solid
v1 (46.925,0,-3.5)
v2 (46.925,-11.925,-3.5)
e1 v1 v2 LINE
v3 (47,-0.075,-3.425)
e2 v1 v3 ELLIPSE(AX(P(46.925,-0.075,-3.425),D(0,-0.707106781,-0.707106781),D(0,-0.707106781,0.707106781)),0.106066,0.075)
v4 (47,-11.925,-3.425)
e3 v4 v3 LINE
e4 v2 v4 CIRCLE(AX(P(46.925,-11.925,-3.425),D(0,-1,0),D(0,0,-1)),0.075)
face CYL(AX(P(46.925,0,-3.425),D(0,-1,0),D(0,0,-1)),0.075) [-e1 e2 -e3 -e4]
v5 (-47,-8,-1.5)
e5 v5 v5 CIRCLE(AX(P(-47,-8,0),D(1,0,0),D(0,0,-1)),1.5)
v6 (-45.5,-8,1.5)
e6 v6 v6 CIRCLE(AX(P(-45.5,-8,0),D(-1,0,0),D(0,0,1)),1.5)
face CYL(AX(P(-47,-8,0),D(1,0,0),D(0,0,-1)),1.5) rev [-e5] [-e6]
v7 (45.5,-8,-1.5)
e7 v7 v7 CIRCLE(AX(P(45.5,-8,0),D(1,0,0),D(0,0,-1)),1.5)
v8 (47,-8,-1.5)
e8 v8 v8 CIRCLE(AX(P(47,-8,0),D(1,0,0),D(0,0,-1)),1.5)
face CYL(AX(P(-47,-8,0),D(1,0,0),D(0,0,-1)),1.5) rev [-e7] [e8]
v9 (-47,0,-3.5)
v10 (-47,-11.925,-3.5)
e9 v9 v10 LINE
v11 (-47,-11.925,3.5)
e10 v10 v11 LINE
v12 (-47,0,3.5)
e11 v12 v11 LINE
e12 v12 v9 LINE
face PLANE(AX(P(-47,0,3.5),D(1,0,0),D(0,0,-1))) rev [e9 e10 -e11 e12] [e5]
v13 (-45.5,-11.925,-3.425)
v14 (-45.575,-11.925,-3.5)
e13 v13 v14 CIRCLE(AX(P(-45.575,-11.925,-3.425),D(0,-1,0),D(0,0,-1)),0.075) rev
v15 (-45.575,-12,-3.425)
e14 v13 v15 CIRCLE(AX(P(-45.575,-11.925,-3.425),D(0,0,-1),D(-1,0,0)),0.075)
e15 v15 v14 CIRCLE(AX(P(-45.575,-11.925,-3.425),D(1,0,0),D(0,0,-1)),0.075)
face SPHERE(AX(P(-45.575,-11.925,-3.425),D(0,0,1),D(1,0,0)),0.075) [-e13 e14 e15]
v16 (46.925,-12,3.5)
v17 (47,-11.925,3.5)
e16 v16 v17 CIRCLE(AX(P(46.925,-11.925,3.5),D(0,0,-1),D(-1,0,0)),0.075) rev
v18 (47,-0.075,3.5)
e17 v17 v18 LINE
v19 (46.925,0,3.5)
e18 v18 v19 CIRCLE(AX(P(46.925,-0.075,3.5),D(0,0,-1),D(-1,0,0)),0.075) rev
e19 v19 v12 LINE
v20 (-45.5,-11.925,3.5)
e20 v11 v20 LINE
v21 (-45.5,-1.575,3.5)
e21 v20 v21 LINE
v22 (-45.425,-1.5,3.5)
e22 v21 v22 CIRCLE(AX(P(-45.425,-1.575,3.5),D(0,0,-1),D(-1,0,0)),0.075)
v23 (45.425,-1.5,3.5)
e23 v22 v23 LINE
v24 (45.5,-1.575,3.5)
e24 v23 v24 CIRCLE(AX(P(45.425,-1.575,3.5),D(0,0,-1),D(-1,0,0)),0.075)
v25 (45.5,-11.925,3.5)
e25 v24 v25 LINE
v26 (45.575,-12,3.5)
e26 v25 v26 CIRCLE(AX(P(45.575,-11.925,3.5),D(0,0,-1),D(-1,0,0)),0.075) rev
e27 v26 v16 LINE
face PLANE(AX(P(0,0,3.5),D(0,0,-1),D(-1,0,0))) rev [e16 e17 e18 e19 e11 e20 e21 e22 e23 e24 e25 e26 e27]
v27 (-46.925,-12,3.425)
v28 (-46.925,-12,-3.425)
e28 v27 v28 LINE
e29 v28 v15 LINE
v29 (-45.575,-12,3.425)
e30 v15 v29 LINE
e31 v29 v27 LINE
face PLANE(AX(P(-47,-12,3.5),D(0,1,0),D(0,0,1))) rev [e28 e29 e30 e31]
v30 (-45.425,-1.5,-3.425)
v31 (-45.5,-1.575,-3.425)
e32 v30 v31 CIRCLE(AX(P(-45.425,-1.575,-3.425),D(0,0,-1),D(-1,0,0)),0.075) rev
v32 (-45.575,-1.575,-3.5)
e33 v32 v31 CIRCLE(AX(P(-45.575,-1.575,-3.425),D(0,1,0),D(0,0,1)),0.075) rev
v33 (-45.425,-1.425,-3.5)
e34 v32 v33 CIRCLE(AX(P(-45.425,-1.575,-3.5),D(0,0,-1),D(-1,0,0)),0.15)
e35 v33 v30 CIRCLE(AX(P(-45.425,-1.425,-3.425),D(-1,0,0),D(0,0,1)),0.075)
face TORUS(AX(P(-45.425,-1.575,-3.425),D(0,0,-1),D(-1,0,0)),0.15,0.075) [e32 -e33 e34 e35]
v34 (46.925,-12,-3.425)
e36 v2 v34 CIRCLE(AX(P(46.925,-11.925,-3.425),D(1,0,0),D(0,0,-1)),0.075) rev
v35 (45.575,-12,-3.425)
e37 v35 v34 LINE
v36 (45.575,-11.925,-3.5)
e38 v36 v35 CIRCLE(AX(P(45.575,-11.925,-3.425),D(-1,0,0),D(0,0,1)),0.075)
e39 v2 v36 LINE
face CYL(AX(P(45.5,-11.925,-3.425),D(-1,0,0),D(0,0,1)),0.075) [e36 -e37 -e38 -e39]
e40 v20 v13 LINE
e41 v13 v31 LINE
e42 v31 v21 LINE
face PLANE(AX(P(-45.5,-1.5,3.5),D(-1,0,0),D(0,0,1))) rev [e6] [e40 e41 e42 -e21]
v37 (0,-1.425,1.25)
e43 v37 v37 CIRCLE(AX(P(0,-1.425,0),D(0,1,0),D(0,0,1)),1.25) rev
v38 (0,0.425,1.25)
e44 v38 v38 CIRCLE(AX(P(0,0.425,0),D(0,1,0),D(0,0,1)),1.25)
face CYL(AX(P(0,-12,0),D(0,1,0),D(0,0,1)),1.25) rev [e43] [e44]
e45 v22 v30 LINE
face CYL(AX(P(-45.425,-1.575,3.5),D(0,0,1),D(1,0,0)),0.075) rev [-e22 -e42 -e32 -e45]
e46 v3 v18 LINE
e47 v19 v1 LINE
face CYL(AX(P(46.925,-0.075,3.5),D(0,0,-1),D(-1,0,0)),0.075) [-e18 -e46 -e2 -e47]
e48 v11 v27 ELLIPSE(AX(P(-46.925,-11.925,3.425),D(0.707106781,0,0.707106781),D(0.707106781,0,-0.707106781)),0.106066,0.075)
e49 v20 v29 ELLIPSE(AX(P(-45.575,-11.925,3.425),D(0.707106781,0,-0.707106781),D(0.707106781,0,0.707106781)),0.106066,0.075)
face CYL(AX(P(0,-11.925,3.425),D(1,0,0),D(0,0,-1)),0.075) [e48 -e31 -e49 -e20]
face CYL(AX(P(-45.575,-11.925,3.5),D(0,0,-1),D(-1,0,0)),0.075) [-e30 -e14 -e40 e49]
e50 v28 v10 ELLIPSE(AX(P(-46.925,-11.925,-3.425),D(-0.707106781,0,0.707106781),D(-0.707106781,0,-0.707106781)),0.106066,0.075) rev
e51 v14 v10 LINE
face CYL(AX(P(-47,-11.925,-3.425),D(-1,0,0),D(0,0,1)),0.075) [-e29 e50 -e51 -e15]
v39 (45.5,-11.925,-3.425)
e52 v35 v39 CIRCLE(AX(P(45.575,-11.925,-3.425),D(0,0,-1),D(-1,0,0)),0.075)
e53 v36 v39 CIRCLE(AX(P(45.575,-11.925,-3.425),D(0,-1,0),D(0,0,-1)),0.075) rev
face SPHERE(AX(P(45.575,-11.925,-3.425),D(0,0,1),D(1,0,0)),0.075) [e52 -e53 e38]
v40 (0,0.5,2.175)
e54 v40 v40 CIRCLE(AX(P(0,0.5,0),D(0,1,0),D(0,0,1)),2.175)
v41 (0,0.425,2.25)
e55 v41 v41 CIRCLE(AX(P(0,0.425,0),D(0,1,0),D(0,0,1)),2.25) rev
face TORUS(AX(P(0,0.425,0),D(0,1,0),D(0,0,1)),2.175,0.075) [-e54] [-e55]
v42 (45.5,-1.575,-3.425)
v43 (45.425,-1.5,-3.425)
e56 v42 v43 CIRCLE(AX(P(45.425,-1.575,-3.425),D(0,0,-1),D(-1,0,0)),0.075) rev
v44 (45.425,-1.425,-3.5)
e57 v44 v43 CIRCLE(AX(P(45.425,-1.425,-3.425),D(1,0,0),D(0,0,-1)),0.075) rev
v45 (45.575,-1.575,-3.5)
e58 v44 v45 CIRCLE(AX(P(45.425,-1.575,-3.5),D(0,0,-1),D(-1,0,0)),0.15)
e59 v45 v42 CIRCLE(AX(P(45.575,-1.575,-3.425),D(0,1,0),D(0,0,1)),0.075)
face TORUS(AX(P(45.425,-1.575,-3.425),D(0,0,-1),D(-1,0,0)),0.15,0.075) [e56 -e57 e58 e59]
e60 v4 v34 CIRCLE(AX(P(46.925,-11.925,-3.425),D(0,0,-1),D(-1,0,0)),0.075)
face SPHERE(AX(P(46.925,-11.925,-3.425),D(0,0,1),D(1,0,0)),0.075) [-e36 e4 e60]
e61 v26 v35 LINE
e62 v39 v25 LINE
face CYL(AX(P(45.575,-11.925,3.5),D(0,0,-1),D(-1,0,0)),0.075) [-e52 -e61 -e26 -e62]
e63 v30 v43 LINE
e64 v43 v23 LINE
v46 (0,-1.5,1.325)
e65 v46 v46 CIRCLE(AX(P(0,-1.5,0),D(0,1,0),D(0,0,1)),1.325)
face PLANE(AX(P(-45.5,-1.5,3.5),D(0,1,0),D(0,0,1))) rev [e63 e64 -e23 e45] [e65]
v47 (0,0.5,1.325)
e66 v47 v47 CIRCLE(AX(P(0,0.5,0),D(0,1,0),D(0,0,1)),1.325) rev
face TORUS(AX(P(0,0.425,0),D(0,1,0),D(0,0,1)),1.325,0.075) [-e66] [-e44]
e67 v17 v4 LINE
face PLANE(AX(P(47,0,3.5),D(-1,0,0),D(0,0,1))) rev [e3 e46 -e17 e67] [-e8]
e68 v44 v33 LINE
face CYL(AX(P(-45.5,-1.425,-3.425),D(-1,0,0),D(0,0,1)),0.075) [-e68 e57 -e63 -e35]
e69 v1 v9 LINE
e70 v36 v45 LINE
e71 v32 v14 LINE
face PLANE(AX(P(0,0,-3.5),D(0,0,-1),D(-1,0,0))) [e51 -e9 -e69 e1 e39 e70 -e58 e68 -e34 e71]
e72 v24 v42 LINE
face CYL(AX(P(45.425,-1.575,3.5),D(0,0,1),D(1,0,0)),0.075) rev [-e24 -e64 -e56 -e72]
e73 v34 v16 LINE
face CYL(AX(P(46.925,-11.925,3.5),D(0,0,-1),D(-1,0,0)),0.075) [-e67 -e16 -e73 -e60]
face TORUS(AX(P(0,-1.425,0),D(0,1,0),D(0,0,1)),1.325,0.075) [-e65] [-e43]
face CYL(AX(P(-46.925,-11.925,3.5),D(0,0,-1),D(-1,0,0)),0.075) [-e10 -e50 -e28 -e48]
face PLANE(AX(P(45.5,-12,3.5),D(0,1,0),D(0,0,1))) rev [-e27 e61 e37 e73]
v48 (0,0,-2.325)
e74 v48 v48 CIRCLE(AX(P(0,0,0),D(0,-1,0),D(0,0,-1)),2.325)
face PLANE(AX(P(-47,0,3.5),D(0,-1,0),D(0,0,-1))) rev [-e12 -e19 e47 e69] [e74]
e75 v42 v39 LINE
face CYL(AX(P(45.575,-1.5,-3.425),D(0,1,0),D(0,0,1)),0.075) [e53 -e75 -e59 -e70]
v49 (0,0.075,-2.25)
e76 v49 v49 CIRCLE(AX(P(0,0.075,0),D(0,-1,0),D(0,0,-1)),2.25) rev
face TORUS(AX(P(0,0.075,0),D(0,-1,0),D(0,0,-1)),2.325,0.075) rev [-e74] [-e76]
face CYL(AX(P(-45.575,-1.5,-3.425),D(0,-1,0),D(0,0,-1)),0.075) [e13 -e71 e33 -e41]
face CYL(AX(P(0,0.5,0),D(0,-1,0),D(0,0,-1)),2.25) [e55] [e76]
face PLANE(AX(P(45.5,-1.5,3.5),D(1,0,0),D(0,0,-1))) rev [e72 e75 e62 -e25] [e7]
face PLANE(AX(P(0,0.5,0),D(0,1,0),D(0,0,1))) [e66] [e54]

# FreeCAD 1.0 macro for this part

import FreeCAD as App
import Part
import Sketcher

V = App.Vector
Q = App.Units.Quantity


def edges_at(feature, points):
    """Names of the edges that pass closest to the given points."""
    edges = feature.Shape.Edges
    near = lambda p: min(range(len(edges)), key=lambda i: edges[i].distToShape(Part.Vertex(*p))[0])
    return sorted({f"Edge{near(p) + 1}" for p in points})


def add_polygon(sketch, points):
    """Adds a closed chain of lines whose ends are joined by coincident constraints."""
    first, n = sketch.GeometryCount, len(points)
    for a, b in zip(points, points[1:] + points[:1]):
        sketch.addGeometry(Part.LineSegment(App.Vector(*a, 0), App.Vector(*b, 0)), False)
    for i in range(n):
        sketch.addConstraint(Sketcher.Constraint("Coincident", first + i, 2, first + (i + 1) % n, 1))

doc = App.newDocument("Part")
body = doc.addObject("PartDesign::Body", "Body")

# Sketch on XY plane
sketch1 = body.newObject("Sketcher::SketchObject", "Sketch")
sketch1.AttachmentSupport = (doc.getObject("XY_Plane"), [""])
sketch1.MapMode = "FlatFace"
add_polygon(sketch1, [(47, 0), (-47, 0), (-47, -12), (-45.5, -12), (-45.5, -1.5), (45.5, -1.5), (45.5, -12), (47, -12)])  # lines 0-7
sketch1.addConstraint(Sketcher.Constraint("Horizontal", 0))
sketch1.addConstraint(Sketcher.Constraint("Vertical", 1))
sketch1.addConstraint(Sketcher.Constraint("Horizontal", 2))
sketch1.addConstraint(Sketcher.Constraint("Vertical", 3))
sketch1.addConstraint(Sketcher.Constraint("Horizontal", 4))
sketch1.addConstraint(Sketcher.Constraint("Vertical", 5))
sketch1.addConstraint(Sketcher.Constraint("Horizontal", 6))
sketch1.addConstraint(Sketcher.Constraint("Vertical", 7))
sketch1.addConstraint(Sketcher.Constraint("Symmetric", 0, 2, 7, 2, -1, 1))
sketch1.addConstraint(Sketcher.Constraint("Symmetric", 2, 2, 5, 2, -2))
sketch1.addConstraint(Sketcher.Constraint("DistanceX", 0, 2, 0, 1, Q("94 mm")))
sketch1.addConstraint(Sketcher.Constraint("DistanceX", 4, 1, 4, 2, Q("91 mm")))
sketch1.addConstraint(Sketcher.Constraint("DistanceY", 1, 2, 1, 1, Q("12 mm")))
sketch1.addConstraint(Sketcher.Constraint("DistanceY", 3, 1, 3, 2, Q("10.5 mm")))
pad1 = body.newObject("PartDesign::Pad", "Pad")
pad1.Profile = sketch1
pad1.Length = 7
pad1.Midplane = True

# Sketch on XZ plane
sketch2 = body.newObject("Sketcher::SketchObject", "Sketch001")
sketch2.AttachmentSupport = (doc.getObject("XZ_Plane"), [""])
sketch2.MapMode = "FlatFace"
sketch2.addGeometry(Part.Circle(V(0, 0, 0), V(0, 0, 1), 1.2), False)
sketch2.addConstraint(Sketcher.Constraint("Coincident", 0, 3, -1, 1))
sketch2.addConstraint(Sketcher.Constraint("Diameter", 0, Q("2.5 mm")))
pocket1 = body.newObject("PartDesign::Pocket", "Pocket")
pocket1.Profile = sketch2
pocket1.Type = "ThroughAll"
pocket1.Reversed = True

# Sketch on XZ plane
sketch3 = body.newObject("Sketcher::SketchObject", "Sketch002")
sketch3.AttachmentSupport = (doc.getObject("XZ_Plane"), [""])
sketch3.MapMode = "FlatFace"
sketch3.addGeometry(Part.Circle(V(0, 0, 0), V(0, 0, 1), 2.2), False)
sketch3.addGeometry(Part.Circle(V(0, 0, 0), V(0, 0, 1), 1.2), False)
sketch3.addConstraint(Sketcher.Constraint("Coincident", 0, 3, -1, 1))
sketch3.addConstraint(Sketcher.Constraint("Coincident", 1, 3, -1, 1))
sketch3.addConstraint(Sketcher.Constraint("Diameter", 0, Q("4.5 mm")))
sketch3.addConstraint(Sketcher.Constraint("Diameter", 1, Q("2.5 mm")))
pad2 = body.newObject("PartDesign::Pad", "Pad001")
pad2.Profile = sketch3
pad2.Length = 0.5
pad2.Reversed = True

# Sketch on YZ plane
sketch4 = body.newObject("Sketcher::SketchObject", "Sketch003")
sketch4.AttachmentSupport = (doc.getObject("YZ_Plane"), [""])
sketch4.MapMode = "FlatFace"
sketch4.addGeometry(Part.Circle(V(-8, 0, 0), V(0, 0, 1), 1.5), False)
sketch4.addConstraint(Sketcher.Constraint("PointOnObject", 0, 3, -1))
sketch4.addConstraint(Sketcher.Constraint("Diameter", 0, Q("3 mm")))
sketch4.addConstraint(Sketcher.Constraint("DistanceX", 0, 3, -1, 1, Q("8 mm")))
pocket2 = body.newObject("PartDesign::Pocket", "Pocket001")
pocket2.Profile = sketch4
pocket2.Type = "ThroughAll"
pocket2.Midplane = True
doc.recompute()

fillet = body.newObject("PartDesign::Fillet", "Fillet")
fillet.Base = (pocket2, edges_at(pocket2, [
    (-45.5, -6.75, -3.5),
    (0, -1.5, -3.5),
    (-2.25, 0, 0),
    (47, -12, 0),
    (47, 0, 0),
    (-47, -12, 0),
    (-45.5, -12, 0),
    (-45.5, -1.5, 0),
    (45.5, -1.5, 0),
    (45.5, -12, 0),
    (-46.25, -12, 3.5),
    (45.5, -6.75, -3.5),
    (-46.25, -12, -3.5),
    (47, -6, -3.5),
    (46.25, -12, -3.5),
    (-1.25, -1.5, 0),
    (-2.25, 0.5, 0),
    (-1.25, 0.5, 0),
]))
fillet.Radius = 0.075

doc.recompute()
